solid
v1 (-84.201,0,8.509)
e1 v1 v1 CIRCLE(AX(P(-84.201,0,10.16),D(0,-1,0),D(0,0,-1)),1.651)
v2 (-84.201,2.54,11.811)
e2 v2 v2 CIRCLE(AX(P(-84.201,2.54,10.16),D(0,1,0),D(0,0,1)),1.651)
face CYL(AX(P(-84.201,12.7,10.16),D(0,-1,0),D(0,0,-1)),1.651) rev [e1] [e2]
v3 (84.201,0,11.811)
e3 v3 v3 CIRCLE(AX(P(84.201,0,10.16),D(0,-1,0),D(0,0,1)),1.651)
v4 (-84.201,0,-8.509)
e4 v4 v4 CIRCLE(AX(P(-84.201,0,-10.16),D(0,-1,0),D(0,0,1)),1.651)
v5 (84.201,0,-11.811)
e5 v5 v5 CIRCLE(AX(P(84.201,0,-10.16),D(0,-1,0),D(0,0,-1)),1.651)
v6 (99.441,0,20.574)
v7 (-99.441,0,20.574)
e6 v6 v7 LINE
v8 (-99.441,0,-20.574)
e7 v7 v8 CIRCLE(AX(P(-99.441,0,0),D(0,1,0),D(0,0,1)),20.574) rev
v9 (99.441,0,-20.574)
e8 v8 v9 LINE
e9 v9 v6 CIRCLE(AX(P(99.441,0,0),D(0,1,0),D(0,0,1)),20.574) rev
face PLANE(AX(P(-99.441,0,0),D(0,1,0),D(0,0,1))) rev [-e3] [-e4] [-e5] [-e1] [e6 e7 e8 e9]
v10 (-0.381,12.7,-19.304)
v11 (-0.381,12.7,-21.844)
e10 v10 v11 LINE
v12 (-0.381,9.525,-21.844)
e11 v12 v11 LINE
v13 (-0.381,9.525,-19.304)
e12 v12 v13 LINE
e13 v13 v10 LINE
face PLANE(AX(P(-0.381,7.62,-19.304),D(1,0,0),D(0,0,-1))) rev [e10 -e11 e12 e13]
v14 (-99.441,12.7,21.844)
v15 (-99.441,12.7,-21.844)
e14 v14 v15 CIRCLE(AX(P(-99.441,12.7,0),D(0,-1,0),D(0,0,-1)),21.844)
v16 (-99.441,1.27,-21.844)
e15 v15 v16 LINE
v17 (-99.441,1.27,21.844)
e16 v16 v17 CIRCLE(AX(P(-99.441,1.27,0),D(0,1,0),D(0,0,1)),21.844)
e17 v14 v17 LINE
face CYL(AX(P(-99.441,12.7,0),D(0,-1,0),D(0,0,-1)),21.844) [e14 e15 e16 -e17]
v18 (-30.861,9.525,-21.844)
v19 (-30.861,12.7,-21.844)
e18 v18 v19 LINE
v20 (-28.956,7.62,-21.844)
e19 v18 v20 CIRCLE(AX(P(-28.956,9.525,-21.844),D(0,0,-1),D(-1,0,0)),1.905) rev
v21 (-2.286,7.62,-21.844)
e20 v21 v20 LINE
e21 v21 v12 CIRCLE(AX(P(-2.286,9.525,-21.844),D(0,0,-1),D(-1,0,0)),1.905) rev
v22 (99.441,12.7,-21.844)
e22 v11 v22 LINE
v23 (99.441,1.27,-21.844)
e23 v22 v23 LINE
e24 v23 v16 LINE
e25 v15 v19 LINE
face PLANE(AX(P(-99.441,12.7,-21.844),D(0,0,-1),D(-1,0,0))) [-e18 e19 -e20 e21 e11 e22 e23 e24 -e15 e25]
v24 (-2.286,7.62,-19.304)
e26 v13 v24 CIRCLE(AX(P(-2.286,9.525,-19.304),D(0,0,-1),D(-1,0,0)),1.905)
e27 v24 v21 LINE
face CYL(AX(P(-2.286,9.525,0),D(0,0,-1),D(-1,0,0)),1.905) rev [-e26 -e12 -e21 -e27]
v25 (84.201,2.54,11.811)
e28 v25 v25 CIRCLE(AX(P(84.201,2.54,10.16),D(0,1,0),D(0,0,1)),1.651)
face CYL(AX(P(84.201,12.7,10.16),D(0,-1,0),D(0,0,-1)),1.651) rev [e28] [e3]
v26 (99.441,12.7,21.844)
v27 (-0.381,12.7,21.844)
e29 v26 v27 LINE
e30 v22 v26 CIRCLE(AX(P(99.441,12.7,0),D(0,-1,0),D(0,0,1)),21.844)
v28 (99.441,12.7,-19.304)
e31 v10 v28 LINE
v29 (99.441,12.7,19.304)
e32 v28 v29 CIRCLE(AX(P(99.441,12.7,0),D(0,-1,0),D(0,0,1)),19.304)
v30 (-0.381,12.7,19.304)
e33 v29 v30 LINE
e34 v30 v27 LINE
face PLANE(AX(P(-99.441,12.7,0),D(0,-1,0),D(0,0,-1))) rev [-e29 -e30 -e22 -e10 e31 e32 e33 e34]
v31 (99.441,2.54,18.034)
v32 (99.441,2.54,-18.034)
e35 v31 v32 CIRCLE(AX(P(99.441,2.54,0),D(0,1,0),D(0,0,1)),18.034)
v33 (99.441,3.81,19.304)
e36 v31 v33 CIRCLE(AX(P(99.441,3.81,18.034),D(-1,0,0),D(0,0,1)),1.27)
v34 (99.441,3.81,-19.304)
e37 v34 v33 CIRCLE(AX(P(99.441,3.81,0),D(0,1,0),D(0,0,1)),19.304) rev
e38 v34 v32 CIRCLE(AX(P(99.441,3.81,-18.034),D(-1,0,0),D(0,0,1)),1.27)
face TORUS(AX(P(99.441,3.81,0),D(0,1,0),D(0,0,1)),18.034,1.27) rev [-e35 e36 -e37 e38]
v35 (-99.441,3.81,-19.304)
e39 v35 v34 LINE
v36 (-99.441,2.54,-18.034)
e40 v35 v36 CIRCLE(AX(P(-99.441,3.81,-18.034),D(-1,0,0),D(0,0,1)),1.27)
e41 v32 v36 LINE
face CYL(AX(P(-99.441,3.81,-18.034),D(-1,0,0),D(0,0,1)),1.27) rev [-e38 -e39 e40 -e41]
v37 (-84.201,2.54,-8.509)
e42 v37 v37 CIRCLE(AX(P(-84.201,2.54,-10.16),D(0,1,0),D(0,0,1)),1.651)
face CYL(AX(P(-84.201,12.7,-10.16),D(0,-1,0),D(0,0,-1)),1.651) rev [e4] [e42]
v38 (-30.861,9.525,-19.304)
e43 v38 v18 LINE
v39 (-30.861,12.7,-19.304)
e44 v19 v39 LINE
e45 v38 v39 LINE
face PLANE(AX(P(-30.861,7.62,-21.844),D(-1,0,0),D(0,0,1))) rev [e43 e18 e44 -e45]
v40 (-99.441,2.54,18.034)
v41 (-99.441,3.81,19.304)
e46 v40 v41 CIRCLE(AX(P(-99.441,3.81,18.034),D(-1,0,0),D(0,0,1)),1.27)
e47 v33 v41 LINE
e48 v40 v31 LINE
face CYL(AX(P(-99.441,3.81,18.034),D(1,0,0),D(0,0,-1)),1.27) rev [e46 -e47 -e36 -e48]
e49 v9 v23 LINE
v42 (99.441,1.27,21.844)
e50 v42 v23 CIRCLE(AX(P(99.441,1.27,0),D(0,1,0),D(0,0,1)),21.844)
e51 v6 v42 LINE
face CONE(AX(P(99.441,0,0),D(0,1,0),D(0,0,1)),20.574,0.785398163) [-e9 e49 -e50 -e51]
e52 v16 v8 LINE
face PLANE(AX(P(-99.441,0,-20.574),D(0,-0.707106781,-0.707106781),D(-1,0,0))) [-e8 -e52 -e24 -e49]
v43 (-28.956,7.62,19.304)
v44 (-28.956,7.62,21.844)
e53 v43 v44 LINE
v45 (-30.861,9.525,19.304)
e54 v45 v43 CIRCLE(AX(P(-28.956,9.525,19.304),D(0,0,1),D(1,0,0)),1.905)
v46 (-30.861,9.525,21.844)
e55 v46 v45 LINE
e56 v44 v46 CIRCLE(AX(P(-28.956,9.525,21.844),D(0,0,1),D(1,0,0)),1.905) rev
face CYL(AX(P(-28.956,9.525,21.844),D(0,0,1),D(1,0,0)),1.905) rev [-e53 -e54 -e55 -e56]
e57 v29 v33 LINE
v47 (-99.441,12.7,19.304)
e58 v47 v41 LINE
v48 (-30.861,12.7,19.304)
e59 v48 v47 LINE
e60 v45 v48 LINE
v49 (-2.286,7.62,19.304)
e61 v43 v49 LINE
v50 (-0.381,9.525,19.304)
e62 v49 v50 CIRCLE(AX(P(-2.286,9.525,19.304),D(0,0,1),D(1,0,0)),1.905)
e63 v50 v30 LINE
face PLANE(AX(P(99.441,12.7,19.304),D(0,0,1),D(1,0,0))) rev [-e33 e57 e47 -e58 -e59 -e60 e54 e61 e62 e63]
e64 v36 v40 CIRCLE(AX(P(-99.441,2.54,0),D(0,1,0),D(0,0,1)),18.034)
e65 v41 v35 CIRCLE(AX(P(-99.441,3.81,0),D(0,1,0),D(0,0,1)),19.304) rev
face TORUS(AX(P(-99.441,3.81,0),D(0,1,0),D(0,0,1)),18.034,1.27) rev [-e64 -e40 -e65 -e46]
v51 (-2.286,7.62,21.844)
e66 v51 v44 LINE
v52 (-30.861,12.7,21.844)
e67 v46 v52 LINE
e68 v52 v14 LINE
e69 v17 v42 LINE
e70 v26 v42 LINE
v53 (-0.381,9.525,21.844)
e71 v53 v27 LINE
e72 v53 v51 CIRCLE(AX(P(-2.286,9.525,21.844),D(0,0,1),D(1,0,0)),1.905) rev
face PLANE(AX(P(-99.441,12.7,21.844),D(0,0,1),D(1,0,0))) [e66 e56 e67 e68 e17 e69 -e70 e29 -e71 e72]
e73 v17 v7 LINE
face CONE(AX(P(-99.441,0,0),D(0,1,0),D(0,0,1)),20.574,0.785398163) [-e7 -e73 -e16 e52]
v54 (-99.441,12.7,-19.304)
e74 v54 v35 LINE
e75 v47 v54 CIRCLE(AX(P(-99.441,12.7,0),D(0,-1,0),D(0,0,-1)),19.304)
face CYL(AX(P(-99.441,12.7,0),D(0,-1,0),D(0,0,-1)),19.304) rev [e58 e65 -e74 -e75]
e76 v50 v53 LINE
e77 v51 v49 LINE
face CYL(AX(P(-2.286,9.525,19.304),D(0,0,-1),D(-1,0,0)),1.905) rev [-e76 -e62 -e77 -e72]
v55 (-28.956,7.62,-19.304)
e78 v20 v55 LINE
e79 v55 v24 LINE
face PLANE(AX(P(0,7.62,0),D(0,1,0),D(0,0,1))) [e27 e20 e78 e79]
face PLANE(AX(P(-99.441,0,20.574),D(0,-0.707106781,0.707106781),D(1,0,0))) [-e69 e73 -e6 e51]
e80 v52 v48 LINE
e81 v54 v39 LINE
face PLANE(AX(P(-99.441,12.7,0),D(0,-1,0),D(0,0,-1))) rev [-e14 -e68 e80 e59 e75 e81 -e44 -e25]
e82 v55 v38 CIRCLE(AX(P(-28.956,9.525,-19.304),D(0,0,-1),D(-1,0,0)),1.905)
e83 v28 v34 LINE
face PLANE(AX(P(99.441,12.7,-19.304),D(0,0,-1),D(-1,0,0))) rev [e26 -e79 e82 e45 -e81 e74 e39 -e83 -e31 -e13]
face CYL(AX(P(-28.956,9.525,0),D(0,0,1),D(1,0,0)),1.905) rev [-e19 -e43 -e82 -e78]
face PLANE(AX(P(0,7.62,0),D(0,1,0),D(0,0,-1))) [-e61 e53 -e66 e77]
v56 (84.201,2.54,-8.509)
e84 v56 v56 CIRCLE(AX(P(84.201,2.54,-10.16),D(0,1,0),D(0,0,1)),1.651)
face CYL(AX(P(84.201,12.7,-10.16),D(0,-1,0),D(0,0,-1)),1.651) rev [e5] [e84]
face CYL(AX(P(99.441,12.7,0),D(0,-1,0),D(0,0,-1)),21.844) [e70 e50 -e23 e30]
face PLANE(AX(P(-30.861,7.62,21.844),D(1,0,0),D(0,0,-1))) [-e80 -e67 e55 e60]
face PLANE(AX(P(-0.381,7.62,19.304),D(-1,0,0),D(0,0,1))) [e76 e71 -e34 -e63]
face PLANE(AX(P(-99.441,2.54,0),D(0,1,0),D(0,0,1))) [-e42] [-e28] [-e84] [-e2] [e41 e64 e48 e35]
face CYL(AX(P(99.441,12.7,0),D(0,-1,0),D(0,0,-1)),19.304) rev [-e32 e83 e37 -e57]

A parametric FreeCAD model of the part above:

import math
import FreeCAD as App
import Part
import Sketcher

V = App.Vector
Q = App.Units.Quantity


def edges_at(feature, points):
    """Names of the edges that pass closest to the given points."""
    edges = feature.Shape.Edges
    near = lambda p: min(range(len(edges)), key=lambda i: edges[i].distToShape(Part.Vertex(*p))[0])
    return sorted({f"Edge{near(p) + 1}" for p in points})


def add_polygon(sketch, points):
    """Adds a closed chain of lines whose ends are joined by coincident constraints."""
    first, n = sketch.GeometryCount, len(points)
    for a, b in zip(points, points[1:] + points[:1]):
        sketch.addGeometry(Part.LineSegment(App.Vector(*a, 0), App.Vector(*b, 0)), False)
    for i in range(n):
        sketch.addConstraint(Sketcher.Constraint("Coincident", first + i, 2, first + (i + 1) % n, 1))

doc = App.newDocument("Part")
params = doc.addObject("Spreadsheet::Sheet", "Params")
for row, (alias, value) in enumerate([
    ("sketch1_radius", "0.76 in"),
    ("sketch1_width", "7.83 in"),
    ("pad1_length", "0.1 in"),
    ("sketch2_radius", "0.86 in"),
    ("sketch2_radius2", "0.76 in"),
    ("sketch2_width", "7.83 in"),
    ("pad2_length", "0.5 in"),
    ("sketch3_diameter", "0.13 in"),
    ("fillet_radius", "0.05 in"),
    ("chamfer_size", "0.05 in"),
    ("sketch4_width", "1.2 in"),
    ("sketch4_height", "0.1 in"),
    ("pocket2_length", "0.2 in"),
    ("fillet2_radius", "0.075 in"),
], start=1):
    params.set(f"A{row}", alias)
    params.set(f"B{row}", "=" + value)
    params.setAlias(f"B{row}", alias)

body = doc.addObject("PartDesign::Body", "Body")

sketch1 = body.newObject("Sketcher::SketchObject", "Sketch")
sketch1.AttachmentSupport = (doc.getObject("XZ_Plane"), [""])
sketch1.MapMode = "FlatFace"
sketch1.addGeometry(Part.LineSegment(V(99, -19, 0), V(-99, -19, 0)), False)
sketch1.addGeometry(Part.ArcOfCircle(Part.Circle(V(-99, 0, 0), V(0, 0, 1), 19), math.radians(90), math.radians(270)), False)
sketch1.addGeometry(Part.LineSegment(V(-99, 19, 0), V(99, 19, 0)), False)
sketch1.addGeometry(Part.ArcOfCircle(Part.Circle(V(99, 0, 0), V(0, 0, 1), 19), math.radians(-90), math.radians(90)), False)
sketch1.addConstraint(Sketcher.Constraint("Tangent", 0, 2, 1, 2))
sketch1.addConstraint(Sketcher.Constraint("Tangent", 1, 1, 2, 1))
sketch1.addConstraint(Sketcher.Constraint("Tangent", 2, 2, 3, 2))
sketch1.addConstraint(Sketcher.Constraint("Tangent", 3, 1, 0, 1))
sketch1.addConstraint(Sketcher.Constraint("Horizontal", 0))
sketch1.addConstraint(Sketcher.Constraint("Horizontal", 2))
sketch1.addConstraint(Sketcher.Constraint("Symmetric", 1, 3, 3, 3, -1, 1))
sketch1.addConstraint(Sketcher.Constraint("Radius", 1, Q("0.76 in")))
sketch1.addConstraint(Sketcher.Constraint("DistanceX", 0, 2, 0, 1, Q("7.83 in")))
sketch1.setExpression("Constraints[7]", "Params.sketch1_radius")
sketch1.setExpression("Constraints[8]", "Params.sketch1_width")
pad1 = body.newObject("PartDesign::Pad", "Pad")
pad1.Profile = sketch1
pad1.setExpression("Length", "Params.pad1_length")
pad1.Reversed = True

sketch2 = body.newObject("Sketcher::SketchObject", "Sketch001")
sketch2.AttachmentSupport = (doc.getObject("XZ_Plane"), [""])
sketch2.MapMode = "FlatFace"
sketch2.addGeometry(Part.LineSegment(V(99, 22, 0), V(-99, 22, 0)), False)
sketch2.addGeometry(Part.ArcOfCircle(Part.Circle(V(-99, 0, 0), V(0, 0, 1), 22), math.radians(90), math.radians(270)), False)
sketch2.addGeometry(Part.LineSegment(V(-99, -22, 0), V(99, -22, 0)), False)
sketch2.addGeometry(Part.ArcOfCircle(Part.Circle(V(99, 0, 0), V(0, 0, 1), 22), math.radians(-90), math.radians(90)), False)
sketch2.addGeometry(Part.ArcOfCircle(Part.Circle(V(99, 0, 0), V(0, 0, 1), 19), math.radians(-90), math.radians(90)), False)
sketch2.addGeometry(Part.LineSegment(V(99, -19, 0), V(-99, -19, 0)), False)
sketch2.addGeometry(Part.ArcOfCircle(Part.Circle(V(-99, 0, 0), V(0, 0, 1), 19), math.radians(90), math.radians(270)), False)
sketch2.addGeometry(Part.LineSegment(V(-99, 19, 0), V(99, 19, 0)), False)
sketch2.addConstraint(Sketcher.Constraint("Tangent", 0, 2, 1, 1))
sketch2.addConstraint(Sketcher.Constraint("Tangent", 1, 2, 2, 1))
sketch2.addConstraint(Sketcher.Constraint("Tangent", 2, 2, 3, 1))
sketch2.addConstraint(Sketcher.Constraint("Tangent", 3, 2, 0, 1))
sketch2.addConstraint(Sketcher.Constraint("Tangent", 4, 1, 5, 1))
sketch2.addConstraint(Sketcher.Constraint("Tangent", 5, 2, 6, 2))
sketch2.addConstraint(Sketcher.Constraint("Tangent", 6, 1, 7, 1))
sketch2.addConstraint(Sketcher.Constraint("Tangent", 7, 2, 4, 2))
sketch2.addConstraint(Sketcher.Constraint("Horizontal", 0))
sketch2.addConstraint(Sketcher.Constraint("Horizontal", 2))
sketch2.addConstraint(Sketcher.Constraint("Horizontal", 5))
sketch2.addConstraint(Sketcher.Constraint("Horizontal", 7))
sketch2.addConstraint(Sketcher.Constraint("Coincident", 4, 3, 3, 3))
sketch2.addConstraint(Sketcher.Constraint("Symmetric", 1, 3, 3, 3, -1, 1))
sketch2.addConstraint(Sketcher.Constraint("Vertical", 6, 3, 0, 2))
sketch2.addConstraint(Sketcher.Constraint("Radius", 1, Q("0.86 in")))
sketch2.addConstraint(Sketcher.Constraint("Radius", 4, Q("0.76 in")))
sketch2.addConstraint(Sketcher.Constraint("DistanceX", 0, 2, 0, 1, Q("7.83 in")))
sketch2.setExpression("Constraints[15]", "Params.sketch2_radius")
sketch2.setExpression("Constraints[16]", "Params.sketch2_radius2")
sketch2.setExpression("Constraints[17]", "Params.sketch2_width")
pad2 = body.newObject("PartDesign::Pad", "Pad001")
pad2.Profile = sketch2
pad2.setExpression("Length", "Params.pad2_length")
pad2.Reversed = True

sketch3 = body.newObject("Sketcher::SketchObject", "Sketch002")
sketch3.AttachmentSupport = (doc.getObject("XZ_Plane"), [""])
sketch3.MapMode = "FlatFace"
sketch3.addGeometry(Part.Circle(V(-84.2, 10.2, 0), V(0, 0, 1), 1.7), False)
sketch3.addGeometry(Part.Circle(V(84.2, 10.2, 0), V(0, 0, 1), 1.7), False)
sketch3.addGeometry(Part.Circle(V(84.2, -10.2, 0), V(0, 0, 1), 1.7), False)
sketch3.addGeometry(Part.Circle(V(-84.2, -10.2, 0), V(0, 0, 1), 1.7), False)
sketch3.addConstraint(Sketcher.Constraint("Equal", 0, 1))
sketch3.addConstraint(Sketcher.Constraint("Equal", 1, 2))
sketch3.addConstraint(Sketcher.Constraint("Equal", 2, 3))
sketch3.addConstraint(Sketcher.Constraint("Symmetric", 0, 3, 2, 3, -1, 1))
sketch3.addConstraint(Sketcher.Constraint("Symmetric", 1, 3, 3, 3, -1, 1))
sketch3.addConstraint(Sketcher.Constraint("Symmetric", 0, 3, 1, 3, -2))
sketch3.addConstraint(Sketcher.Constraint("Diameter", 0, Q("0.13 in")))
sketch3.addConstraint(Sketcher.Constraint("DistanceY", -1, 1, 0, 3, Q("0.4 in")))
sketch3.addConstraint(Sketcher.Constraint("DistanceX", 0, 3, 1, 3, Q("6.63 in")))
sketch3.setExpression("Constraints[6]", "Params.sketch3_diameter")
pocket1 = body.newObject("PartDesign::Pocket", "Pocket")
pocket1.Profile = sketch3
pocket1.Type = "ThroughAll"
doc.recompute()

fillet = body.newObject("PartDesign::Fillet", "Fillet")
fillet.Base = (pocket1, edges_at(pocket1, [
    (118.745, 2.54, 0),
    (0, 2.54, -19.304),
    (-118.745, 2.54, 0),
    (0, 2.54, 19.304),
]))
fillet.setExpression("Radius", "Params.fillet_radius")
doc.recompute()

chamfer = body.newObject("PartDesign::Chamfer", "Chamfer")
chamfer.Base = (fillet, edges_at(fillet, [
    (-121.285, 0, 0),
    (0, 0, -21.844),
    (121.285, 0, 0),
    (0, 0, 21.844),
]))
chamfer.setExpression("Size", "Params.chamfer_size")

sketch4 = body.newObject("Sketcher::SketchObject", "Sketch003")
sketch4.AttachmentSupport = (doc.getObject("XZ_Plane"), [""])
sketch4.MapMode = "FlatFace"
sketch4.AttachmentOffset = App.Placement(V(0, 0, -0.5 * 25.4), App.Rotation())
add_polygon(sketch4, [(-30.9, -21.8), (-30.9, -19.3), (-0.4, -19.3), (-0.4, -21.8)])
sketch4.addConstraint(Sketcher.Constraint("Vertical", 0))
sketch4.addConstraint(Sketcher.Constraint("Horizontal", 1))
sketch4.addConstraint(Sketcher.Constraint("Vertical", 2))
sketch4.addConstraint(Sketcher.Constraint("Horizontal", 3))
sketch4.addConstraint(Sketcher.Constraint("DistanceX", 1, 1, 1, 2, Q("1.2 in")))
sketch4.addConstraint(Sketcher.Constraint("DistanceY", 0, 1, 0, 2, Q("0.1 in")))
sketch4.addConstraint(Sketcher.Constraint("DistanceY", 0, 2, -1, 1, Q("0.76 in")))
sketch4.addConstraint(Sketcher.Constraint("DistanceX", 0, 2, -1, 1, Q("1.215 in")))
sketch4.setExpression("Constraints[8]", "Params.sketch4_width")
sketch4.setExpression("Constraints[9]", "Params.sketch4_height")
pocket2 = body.newObject("PartDesign::Pocket", "Pocket001")
pocket2.Profile = sketch4
pocket2.setExpression("Length", "Params.pocket2_length")
pocket2.Reversed = True
doc.recompute()

mirrored = body.newObject("PartDesign::Mirrored", "Mirrored")
mirrored.Originals = [pocket2]
mirrored.MirrorPlane = (doc.getObject("XY_Plane"), [""])
body.Tip = mirrored
doc.recompute()

fillet2 = body.newObject("PartDesign::Fillet", "Fillet001")
fillet2.Base = (mirrored, edges_at(mirrored, [
    (-30.861, 7.62, 20.574),
    (-0.381, 7.62, 20.574),
    (-0.381, 7.62, -20.574),
    (-30.861, 7.62, -20.574),
]))
fillet2.setExpression("Radius", "Params.fillet2_radius")

doc.recompute()
